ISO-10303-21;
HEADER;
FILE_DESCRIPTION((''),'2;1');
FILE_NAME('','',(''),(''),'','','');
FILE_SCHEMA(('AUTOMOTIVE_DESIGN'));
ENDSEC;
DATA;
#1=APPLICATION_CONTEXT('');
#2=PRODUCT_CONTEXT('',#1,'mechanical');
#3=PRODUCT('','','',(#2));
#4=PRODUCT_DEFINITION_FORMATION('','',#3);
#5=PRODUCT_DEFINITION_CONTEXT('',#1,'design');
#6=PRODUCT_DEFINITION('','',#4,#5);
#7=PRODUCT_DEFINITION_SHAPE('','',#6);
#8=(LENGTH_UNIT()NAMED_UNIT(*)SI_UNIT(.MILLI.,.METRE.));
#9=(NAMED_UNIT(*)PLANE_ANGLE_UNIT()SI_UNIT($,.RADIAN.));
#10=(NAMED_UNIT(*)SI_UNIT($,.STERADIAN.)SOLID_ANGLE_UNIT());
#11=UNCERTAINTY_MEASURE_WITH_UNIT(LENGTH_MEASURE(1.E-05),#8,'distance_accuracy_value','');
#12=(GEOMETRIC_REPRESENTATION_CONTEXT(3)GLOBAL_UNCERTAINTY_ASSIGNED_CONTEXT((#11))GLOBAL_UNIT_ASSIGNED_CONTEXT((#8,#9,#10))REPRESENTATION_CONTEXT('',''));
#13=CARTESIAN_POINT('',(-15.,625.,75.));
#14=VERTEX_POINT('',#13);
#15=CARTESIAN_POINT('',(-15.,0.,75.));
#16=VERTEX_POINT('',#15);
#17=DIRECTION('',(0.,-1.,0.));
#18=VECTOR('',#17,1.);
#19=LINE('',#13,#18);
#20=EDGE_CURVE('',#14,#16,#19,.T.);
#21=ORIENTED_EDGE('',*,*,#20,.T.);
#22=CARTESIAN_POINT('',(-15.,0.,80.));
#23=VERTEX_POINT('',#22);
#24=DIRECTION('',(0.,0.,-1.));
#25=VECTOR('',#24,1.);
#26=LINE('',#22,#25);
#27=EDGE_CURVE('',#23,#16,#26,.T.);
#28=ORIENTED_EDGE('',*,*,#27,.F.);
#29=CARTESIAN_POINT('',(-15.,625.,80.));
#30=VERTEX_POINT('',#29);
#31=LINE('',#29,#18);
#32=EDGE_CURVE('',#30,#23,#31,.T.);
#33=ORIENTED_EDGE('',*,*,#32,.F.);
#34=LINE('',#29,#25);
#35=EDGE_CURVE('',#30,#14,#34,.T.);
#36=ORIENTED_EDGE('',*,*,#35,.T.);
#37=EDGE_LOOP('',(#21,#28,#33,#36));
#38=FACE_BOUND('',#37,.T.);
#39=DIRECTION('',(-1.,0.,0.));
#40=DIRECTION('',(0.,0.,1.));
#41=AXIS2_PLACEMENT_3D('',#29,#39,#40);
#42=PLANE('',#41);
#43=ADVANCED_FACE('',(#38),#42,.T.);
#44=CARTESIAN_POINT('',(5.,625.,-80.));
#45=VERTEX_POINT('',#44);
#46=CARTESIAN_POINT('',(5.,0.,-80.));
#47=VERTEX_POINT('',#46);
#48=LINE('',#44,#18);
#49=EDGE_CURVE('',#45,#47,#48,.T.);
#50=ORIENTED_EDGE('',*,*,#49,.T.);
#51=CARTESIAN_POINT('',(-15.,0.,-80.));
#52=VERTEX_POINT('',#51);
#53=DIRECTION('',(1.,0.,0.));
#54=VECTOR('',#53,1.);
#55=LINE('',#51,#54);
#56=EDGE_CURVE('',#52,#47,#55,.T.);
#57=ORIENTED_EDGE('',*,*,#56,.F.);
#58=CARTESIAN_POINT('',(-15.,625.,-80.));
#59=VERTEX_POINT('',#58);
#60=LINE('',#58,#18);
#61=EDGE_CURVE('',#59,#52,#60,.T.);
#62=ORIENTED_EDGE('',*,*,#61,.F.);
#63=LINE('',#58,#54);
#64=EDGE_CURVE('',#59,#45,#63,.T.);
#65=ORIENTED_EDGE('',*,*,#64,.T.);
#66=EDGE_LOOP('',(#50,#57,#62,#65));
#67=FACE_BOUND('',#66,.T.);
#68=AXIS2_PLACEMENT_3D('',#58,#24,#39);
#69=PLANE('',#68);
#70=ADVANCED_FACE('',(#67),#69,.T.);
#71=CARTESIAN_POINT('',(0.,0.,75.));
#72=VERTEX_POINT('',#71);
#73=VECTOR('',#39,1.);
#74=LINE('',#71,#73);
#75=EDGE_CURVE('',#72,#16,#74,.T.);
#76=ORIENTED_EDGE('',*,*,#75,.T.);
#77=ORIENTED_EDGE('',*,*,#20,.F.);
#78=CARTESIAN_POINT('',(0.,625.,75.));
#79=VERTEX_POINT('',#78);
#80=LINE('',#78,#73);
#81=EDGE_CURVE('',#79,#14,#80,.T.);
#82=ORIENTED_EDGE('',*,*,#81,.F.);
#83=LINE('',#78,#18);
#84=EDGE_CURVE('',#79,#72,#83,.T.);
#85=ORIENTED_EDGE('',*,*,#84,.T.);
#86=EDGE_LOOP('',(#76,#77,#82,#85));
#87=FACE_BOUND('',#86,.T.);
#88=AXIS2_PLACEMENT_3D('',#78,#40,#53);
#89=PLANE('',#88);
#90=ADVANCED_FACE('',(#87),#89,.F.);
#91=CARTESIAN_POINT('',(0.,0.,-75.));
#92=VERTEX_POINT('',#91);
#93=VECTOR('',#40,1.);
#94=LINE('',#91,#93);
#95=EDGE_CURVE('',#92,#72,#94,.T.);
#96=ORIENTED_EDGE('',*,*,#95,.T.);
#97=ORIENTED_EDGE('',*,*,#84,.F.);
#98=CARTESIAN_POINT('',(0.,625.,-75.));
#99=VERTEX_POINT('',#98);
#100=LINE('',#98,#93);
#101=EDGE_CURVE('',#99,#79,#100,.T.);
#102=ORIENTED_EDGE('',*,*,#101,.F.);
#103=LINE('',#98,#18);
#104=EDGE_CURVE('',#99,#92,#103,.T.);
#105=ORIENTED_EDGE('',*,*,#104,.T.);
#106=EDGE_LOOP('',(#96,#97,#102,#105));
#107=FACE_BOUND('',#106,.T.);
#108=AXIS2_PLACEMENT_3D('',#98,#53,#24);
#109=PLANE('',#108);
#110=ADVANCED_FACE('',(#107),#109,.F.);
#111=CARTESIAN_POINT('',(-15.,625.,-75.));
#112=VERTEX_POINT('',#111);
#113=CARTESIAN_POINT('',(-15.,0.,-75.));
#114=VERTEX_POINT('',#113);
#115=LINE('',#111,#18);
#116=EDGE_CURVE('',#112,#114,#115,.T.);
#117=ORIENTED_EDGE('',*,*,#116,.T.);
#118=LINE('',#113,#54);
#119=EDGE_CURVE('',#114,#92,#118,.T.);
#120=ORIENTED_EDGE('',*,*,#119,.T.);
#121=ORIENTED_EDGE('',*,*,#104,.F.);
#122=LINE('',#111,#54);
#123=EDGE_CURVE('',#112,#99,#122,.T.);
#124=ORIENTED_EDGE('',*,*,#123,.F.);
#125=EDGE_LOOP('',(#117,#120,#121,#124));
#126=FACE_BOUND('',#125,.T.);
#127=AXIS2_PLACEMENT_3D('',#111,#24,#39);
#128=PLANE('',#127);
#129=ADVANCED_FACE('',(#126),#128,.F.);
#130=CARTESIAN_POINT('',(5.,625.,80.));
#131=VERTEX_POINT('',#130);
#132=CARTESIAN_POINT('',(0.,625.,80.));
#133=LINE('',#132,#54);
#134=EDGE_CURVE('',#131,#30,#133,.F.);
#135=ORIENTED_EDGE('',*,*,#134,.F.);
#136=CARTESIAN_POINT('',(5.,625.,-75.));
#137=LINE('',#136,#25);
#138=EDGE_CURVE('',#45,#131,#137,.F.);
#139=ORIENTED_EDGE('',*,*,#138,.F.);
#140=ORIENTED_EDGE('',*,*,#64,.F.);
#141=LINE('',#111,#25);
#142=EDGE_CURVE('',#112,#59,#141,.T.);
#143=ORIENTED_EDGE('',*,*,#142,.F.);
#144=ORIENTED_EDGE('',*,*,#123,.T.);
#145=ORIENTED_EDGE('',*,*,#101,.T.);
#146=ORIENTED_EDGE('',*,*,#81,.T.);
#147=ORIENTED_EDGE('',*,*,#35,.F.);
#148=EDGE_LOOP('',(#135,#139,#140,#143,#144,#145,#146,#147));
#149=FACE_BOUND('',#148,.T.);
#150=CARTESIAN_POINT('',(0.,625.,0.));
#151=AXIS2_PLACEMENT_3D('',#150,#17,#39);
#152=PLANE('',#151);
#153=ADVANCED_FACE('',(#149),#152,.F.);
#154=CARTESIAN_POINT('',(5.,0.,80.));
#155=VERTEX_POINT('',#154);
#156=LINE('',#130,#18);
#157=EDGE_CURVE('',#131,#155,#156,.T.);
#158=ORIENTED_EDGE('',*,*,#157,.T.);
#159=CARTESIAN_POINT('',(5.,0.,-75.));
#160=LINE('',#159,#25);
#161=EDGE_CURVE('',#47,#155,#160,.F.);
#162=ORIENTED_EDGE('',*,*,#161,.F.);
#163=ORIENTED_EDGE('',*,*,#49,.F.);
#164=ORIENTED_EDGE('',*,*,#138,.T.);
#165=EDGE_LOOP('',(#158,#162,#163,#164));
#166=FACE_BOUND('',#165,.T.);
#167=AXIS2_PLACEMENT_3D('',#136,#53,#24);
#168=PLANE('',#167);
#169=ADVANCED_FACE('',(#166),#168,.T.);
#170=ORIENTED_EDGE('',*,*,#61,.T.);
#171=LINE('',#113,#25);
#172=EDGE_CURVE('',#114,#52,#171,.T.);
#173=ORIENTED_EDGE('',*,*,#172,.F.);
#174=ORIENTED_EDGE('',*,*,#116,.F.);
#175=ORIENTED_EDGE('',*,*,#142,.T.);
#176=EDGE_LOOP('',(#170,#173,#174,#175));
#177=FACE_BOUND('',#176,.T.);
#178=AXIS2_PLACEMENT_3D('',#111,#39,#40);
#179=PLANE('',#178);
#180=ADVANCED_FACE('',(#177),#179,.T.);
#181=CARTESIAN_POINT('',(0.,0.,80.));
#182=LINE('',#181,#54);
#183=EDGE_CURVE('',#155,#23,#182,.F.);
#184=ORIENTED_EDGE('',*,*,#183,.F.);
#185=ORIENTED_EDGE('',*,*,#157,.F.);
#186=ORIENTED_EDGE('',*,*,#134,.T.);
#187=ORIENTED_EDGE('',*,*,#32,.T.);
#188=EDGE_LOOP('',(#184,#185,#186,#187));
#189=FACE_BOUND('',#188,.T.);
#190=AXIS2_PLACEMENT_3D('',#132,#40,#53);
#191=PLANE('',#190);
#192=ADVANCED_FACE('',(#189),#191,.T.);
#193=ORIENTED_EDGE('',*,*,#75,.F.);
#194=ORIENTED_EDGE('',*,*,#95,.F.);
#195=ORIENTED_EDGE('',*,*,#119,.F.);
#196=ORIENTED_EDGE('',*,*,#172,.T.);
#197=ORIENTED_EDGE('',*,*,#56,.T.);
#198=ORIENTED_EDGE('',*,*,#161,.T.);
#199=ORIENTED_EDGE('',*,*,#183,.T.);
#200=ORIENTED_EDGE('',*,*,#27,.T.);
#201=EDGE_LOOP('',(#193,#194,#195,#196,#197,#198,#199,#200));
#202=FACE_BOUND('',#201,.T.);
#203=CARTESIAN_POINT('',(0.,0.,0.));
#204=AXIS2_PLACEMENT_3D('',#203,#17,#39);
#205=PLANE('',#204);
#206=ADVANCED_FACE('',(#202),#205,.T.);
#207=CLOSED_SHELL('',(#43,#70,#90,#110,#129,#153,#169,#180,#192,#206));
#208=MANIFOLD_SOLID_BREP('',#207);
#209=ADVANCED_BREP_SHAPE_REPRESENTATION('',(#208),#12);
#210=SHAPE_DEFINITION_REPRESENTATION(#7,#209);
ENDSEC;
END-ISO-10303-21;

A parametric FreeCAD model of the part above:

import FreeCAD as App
import Part
import Sketcher
from FreeCAD import Vector
Q = App.Units.Quantity


def add_polygon(sketch, points):
    """Adds a closed chain of lines whose ends are joined by coincident constraints."""
    first, n = sketch.GeometryCount, len(points)
    for a, b in zip(points, points[1:] + points[:1]):
        sketch.addGeometry(Part.LineSegment(App.Vector(*a, 0), App.Vector(*b, 0)), False)
    for i in range(n):
        sketch.addConstraint(Sketcher.Constraint("Coincident", first + i, 2, first + (i + 1) % n, 1))

doc = App.newDocument("Part")
body = doc.addObject("PartDesign::Body", "Body")

# Sketch on XZ plane
sketch1 = body.newObject("Sketcher::SketchObject", "Sketch")
sketch1.AttachmentSupport = (doc.getObject("XZ_Plane"), [""])
sketch1.MapMode = "FlatFace"
add_polygon(sketch1, [(-15, -75), (0, -75), (0, 75), (-15, 75), (-15, 80), (5, 80), (5, -80), (-15, -80)])  # lines 0-7
sketch1.addConstraint([
    Sketcher.Constraint("Horizontal", 0),
    Sketcher.Constraint("Vertical", 1),
    Sketcher.Constraint("Horizontal", 2),
    Sketcher.Constraint("Vertical", 3),
    Sketcher.Constraint("Horizontal", 4),
    Sketcher.Constraint("Vertical", 5),
    Sketcher.Constraint("Horizontal", 6),
    Sketcher.Constraint("Vertical", 7),
    Sketcher.Constraint("Symmetric", 0, 2, 1, 2, -1, 1),
    Sketcher.Constraint("Symmetric", 3, 2, 6, 2, -1),
    Sketcher.Constraint("DistanceX", 0, 1, 0, 2, Q("15 mm")),
    Sketcher.Constraint("DistanceX", 4, 1, 4, 2, Q("20 mm")),
    Sketcher.Constraint("DistanceY", 1, 1, 1, 2, Q("150 mm")),
    Sketcher.Constraint("DistanceY", 3, 1, 3, 2, Q("5 mm")),
])
pad1 = body.newObject("PartDesign::Pad", "Pad")
pad1.Profile = sketch1
pad1.Length = 625
pad1.Reversed = True

doc.recompute()
